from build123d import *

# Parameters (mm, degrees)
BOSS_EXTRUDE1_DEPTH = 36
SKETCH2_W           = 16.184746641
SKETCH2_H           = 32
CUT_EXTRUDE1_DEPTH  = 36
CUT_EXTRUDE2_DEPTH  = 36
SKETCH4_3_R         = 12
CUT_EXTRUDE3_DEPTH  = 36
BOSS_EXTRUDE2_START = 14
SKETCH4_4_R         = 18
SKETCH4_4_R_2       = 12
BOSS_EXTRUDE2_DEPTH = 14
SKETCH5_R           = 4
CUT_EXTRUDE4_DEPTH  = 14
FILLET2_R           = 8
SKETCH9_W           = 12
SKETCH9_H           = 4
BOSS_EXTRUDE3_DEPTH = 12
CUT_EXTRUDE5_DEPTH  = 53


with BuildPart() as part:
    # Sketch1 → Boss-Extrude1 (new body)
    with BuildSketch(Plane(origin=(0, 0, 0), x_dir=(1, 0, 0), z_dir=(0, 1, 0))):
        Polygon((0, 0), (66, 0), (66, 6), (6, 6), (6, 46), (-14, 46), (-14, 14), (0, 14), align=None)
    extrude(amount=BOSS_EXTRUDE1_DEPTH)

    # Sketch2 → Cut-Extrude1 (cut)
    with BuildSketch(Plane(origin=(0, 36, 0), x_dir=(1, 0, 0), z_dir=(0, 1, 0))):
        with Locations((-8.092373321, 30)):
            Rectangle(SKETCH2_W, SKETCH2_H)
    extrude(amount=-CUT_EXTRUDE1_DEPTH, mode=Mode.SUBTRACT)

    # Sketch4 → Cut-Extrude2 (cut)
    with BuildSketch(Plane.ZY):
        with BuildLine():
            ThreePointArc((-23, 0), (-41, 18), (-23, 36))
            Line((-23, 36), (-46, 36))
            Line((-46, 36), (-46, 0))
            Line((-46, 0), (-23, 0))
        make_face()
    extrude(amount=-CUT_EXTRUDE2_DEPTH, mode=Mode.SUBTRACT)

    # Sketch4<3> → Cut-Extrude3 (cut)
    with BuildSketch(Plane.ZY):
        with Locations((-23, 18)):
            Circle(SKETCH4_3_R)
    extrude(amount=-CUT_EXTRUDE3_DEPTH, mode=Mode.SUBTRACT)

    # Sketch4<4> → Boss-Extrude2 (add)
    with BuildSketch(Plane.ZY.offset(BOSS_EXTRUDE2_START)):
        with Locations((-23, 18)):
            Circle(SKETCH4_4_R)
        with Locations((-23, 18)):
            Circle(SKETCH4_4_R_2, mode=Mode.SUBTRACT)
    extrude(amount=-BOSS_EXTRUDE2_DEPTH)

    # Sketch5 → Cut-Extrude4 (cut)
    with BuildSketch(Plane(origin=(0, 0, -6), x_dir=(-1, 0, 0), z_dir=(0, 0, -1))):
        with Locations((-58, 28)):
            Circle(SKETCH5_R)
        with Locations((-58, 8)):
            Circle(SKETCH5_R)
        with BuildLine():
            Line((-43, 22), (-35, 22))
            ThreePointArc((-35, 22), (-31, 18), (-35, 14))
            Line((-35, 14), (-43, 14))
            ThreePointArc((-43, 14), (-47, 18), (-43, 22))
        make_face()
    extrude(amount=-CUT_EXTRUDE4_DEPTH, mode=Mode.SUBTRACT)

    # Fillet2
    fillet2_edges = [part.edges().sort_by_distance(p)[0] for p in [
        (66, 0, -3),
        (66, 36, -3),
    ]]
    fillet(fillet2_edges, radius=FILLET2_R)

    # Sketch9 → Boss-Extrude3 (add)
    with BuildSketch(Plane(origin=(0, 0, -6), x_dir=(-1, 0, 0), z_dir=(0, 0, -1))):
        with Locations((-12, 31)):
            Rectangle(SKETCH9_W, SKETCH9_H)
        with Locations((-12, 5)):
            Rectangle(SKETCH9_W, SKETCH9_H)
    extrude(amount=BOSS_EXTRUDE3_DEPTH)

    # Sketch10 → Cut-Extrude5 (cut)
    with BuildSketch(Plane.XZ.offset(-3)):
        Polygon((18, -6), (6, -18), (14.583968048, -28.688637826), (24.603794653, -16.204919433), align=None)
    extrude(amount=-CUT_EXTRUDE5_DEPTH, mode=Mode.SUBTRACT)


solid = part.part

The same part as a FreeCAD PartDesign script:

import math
import FreeCAD as App
import Part
import Sketcher

V = App.Vector
Q = App.Units.Quantity


def edges_at(feature, points):
    """Names of the edges that pass closest to the given points."""
    edges = feature.Shape.Edges
    near = lambda p: min(range(len(edges)), key=lambda i: edges[i].distToShape(Part.Vertex(*p))[0])
    return sorted({f"Edge{near(p) + 1}" for p in points})

doc = App.newDocument("Part")
params = doc.addObject("Spreadsheet::Sheet", "Params")
for row, (alias, value) in enumerate([
    ("sketch1_width", "66 mm"),
    ("sketch1_width2", "60 mm"),
    ("sketch1_width3", "20 mm"),
    ("sketch1_height", "6 mm"),
    ("sketch1_height2", "40 mm"),
    ("pad1_length", "36 mm"),
    ("sketch2_height", "32 mm"),
    ("pocket1_length", "36 mm"),
    ("sketch3_radius", "18 mm"),
    ("sketch3_height", "23 mm"),
    ("pocket2_length", "36 mm"),
    ("sketch4_diameter", "24 mm"),
    ("pocket3_length", "36 mm"),
    ("sketch5_diameter", "36 mm"),
    ("sketch5_diameter2", "24 mm"),
    ("pad2_length", "14 mm"),
    ("sketch6_diameter", "8 mm"),
    ("sketch6_width", "8 mm"),
    ("pocket4_length", "14 mm"),
    ("fillet_radius", "8 mm"),
    ("sketch7_width", "12 mm"),
    ("sketch7_height", "4 mm"),
    ("pad3_length", "12 mm"),
    ("pocket5_length", "53 mm"),
], start=1):
    params.set(f"A{row}", alias)
    params.set(f"B{row}", "=" + value)
    params.setAlias(f"B{row}", alias)

body = doc.addObject("PartDesign::Body", "Body")

sketch1 = body.newObject("Sketcher::SketchObject", "Sketch")
sketch1.AttachmentSupport = (doc.getObject("XZ_Plane"), [""])
sketch1.MapMode = "FlatFace"
sketch1.addGeometry([
    Part.LineSegment(V(0, 0, 0), V(66, 0, 0)),
    Part.LineSegment(V(66, 0, 0), V(66, -6, 0)),
    Part.LineSegment(V(66, -6, 0), V(6, -6, 0)),
    Part.LineSegment(V(6, -6, 0), V(6, -46, 0)),
    Part.LineSegment(V(6, -46, 0), V(-14, -46, 0)),
    Part.LineSegment(V(-14, -46, 0), V(-14, -14, 0)),
    Part.LineSegment(V(-14, -14, 0), V(0, -14, 0)),
    Part.LineSegment(V(0, -14, 0), V(0, 0, 0)),
], False)
sketch1.addConstraint([
    Sketcher.Constraint("Coincident", 0, 2, 1, 1),
    Sketcher.Constraint("Coincident", 1, 2, 2, 1),
    Sketcher.Constraint("Coincident", 2, 2, 3, 1),
    Sketcher.Constraint("Coincident", 3, 2, 4, 1),
    Sketcher.Constraint("Coincident", 4, 2, 5, 1),
    Sketcher.Constraint("Coincident", 5, 2, 6, 1),
    Sketcher.Constraint("Coincident", 6, 2, 7, 1),
    Sketcher.Constraint("Coincident", 7, 2, 0, 1),
    Sketcher.Constraint("Horizontal", 0),
    Sketcher.Constraint("Vertical", 1),
    Sketcher.Constraint("Horizontal", 2),
    Sketcher.Constraint("Vertical", 3),
    Sketcher.Constraint("Horizontal", 4),
    Sketcher.Constraint("Vertical", 5),
    Sketcher.Constraint("Horizontal", 6),
    Sketcher.Constraint("Vertical", 7),
    Sketcher.Constraint("Coincident", 7, 2, -1, 1),
    Sketcher.Constraint("Equal", 6, 7),
    Sketcher.Constraint("DistanceX", 0, 1, 0, 2, Q("66 mm")),
    Sketcher.Constraint("DistanceX", 2, 2, 2, 1, Q("60 mm")),
    Sketcher.Constraint("DistanceX", 4, 2, 4, 1, Q("20 mm")),
    Sketcher.Constraint("DistanceY", 1, 2, 1, 1, Q("6 mm")),
    Sketcher.Constraint("DistanceY", 3, 2, 3, 1, Q("40 mm")),
])
sketch1.setExpression("Constraints[18]", "Params.sketch1_width")
sketch1.setExpression("Constraints[19]", "Params.sketch1_width2")
sketch1.setExpression("Constraints[20]", "Params.sketch1_width3")
sketch1.setExpression("Constraints[21]", "Params.sketch1_height")
sketch1.setExpression("Constraints[22]", "Params.sketch1_height2")
pad1 = body.newObject("PartDesign::Pad", "Pad")
pad1.Profile = sketch1
pad1.setExpression("Length", "Params.pad1_length")
pad1.Reversed = True

sketch2 = body.newObject("Sketcher::SketchObject", "Sketch001")
sketch2.AttachmentSupport = (doc.getObject("XZ_Plane"), [""])
sketch2.MapMode = "FlatFace"
sketch2.AttachmentOffset = App.Placement(V(0, 0, -36), App.Rotation())
sketch2.addGeometry([
    Part.LineSegment(V(-16, -46, 0), V(-16, -14, 0)),
    Part.LineSegment(V(-16, -14, 0), V(0, -14, 0)),
    Part.LineSegment(V(0, -14, 0), V(0, -46, 0)),
    Part.LineSegment(V(0, -46, 0), V(-16, -46, 0)),
], False)
sketch2.addConstraint([
    Sketcher.Constraint("Coincident", 0, 2, 1, 1),
    Sketcher.Constraint("Coincident", 1, 2, 2, 1),
    Sketcher.Constraint("Coincident", 2, 2, 3, 1),
    Sketcher.Constraint("Coincident", 3, 2, 0, 1),
    Sketcher.Constraint("Vertical", 0),
    Sketcher.Constraint("Horizontal", 1),
    Sketcher.Constraint("Vertical", 2),
    Sketcher.Constraint("Horizontal", 3),
    Sketcher.Constraint("PointOnObject", 1, 2, -2),
    Sketcher.Constraint("DistanceY", 0, 1, 0, 2, Q("32 mm")),
    Sketcher.Constraint("DistanceY", 0, 2, -1, 1, Q("14 mm")),
    Sketcher.Constraint("DistanceX", 1, 1, 1, 2, Q("16.184747 mm")),
])
sketch2.setExpression("Constraints[9]", "Params.sketch2_height")
pocket1 = body.newObject("PartDesign::Pocket", "Pocket")
pocket1.Profile = sketch2
pocket1.setExpression("Length", "Params.pocket1_length")
pocket1.Reversed = True

sketch3 = body.newObject("Sketcher::SketchObject", "Sketch002")
sketch3.AttachmentSupport = (doc.getObject("YZ_Plane"), [""])
sketch3.MapMode = "FlatFace"
sketch3.addGeometry([
    Part.ArcOfCircle(Part.Circle(V(18, -23, 0), V(0, 0, 1), 18), math.radians(180), math.radians(360)),
    Part.LineSegment(V(36, -23, 0), V(36, -46, 0)),
    Part.LineSegment(V(36, -46, 0), V(0, -46, 0)),
    Part.LineSegment(V(0, -46, 0), V(0, -23, 0)),
], False)
sketch3.addConstraint([
    Sketcher.Constraint("Tangent", 0, 2, 1, 1),
    Sketcher.Constraint("Coincident", 1, 2, 2, 1),
    Sketcher.Constraint("Coincident", 2, 2, 3, 1),
    Sketcher.Constraint("Tangent", 3, 2, 0, 1),
    Sketcher.Constraint("Vertical", 1),
    Sketcher.Constraint("Horizontal", 2),
    Sketcher.Constraint("Vertical", 3),
    Sketcher.Constraint("PointOnObject", 2, 2, -2),
    Sketcher.Constraint("Radius", 0, Q("18 mm")),
    Sketcher.Constraint("DistanceY", 1, 2, 1, 1, Q("23 mm")),
    Sketcher.Constraint("DistanceY", 0, 3, -1, 1, Q("23 mm")),
])
sketch3.setExpression("Constraints[8]", "Params.sketch3_radius")
sketch3.setExpression("Constraints[9]", "Params.sketch3_height")
pocket2 = body.newObject("PartDesign::Pocket", "Pocket001")
pocket2.Profile = sketch3
pocket2.setExpression("Length", "Params.pocket2_length")
pocket2.Reversed = True

sketch4 = body.newObject("Sketcher::SketchObject", "Sketch003")
sketch4.AttachmentSupport = (doc.getObject("YZ_Plane"), [""])
sketch4.MapMode = "FlatFace"
sketch4.addGeometry(Part.Circle(V(18, -23, 0), V(0, 0, 1), 12), False)
sketch4.addConstraint([
    Sketcher.Constraint("Diameter", 0, Q("24 mm")),
    Sketcher.Constraint("DistanceX", -1, 1, 0, 3, Q("18 mm")),
    Sketcher.Constraint("DistanceY", 0, 3, -1, 1, Q("23 mm")),
])
sketch4.setExpression("Constraints[0]", "Params.sketch4_diameter")
pocket3 = body.newObject("PartDesign::Pocket", "Pocket002")
pocket3.Profile = sketch4
pocket3.setExpression("Length", "Params.pocket3_length")
pocket3.Reversed = True

sketch5 = body.newObject("Sketcher::SketchObject", "Sketch004")
sketch5.AttachmentSupport = (doc.getObject("YZ_Plane"), [""])
sketch5.MapMode = "FlatFace"
sketch5.AttachmentOffset = App.Placement(V(0, 0, -14), App.Rotation())
sketch5.addGeometry([
    Part.Circle(V(18, -23, 0), V(0, 0, 1), 18),
    Part.Circle(V(18, -23, 0), V(0, 0, 1), 12),
], False)
sketch5.addConstraint([
    Sketcher.Constraint("Coincident", 1, 3, 0, 3),
    Sketcher.Constraint("Diameter", 0, Q("36 mm")),
    Sketcher.Constraint("Diameter", 1, Q("24 mm")),
    Sketcher.Constraint("DistanceX", -1, 1, 0, 3, Q("18 mm")),
    Sketcher.Constraint("DistanceY", 0, 3, -1, 1, Q("23 mm")),
])
sketch5.setExpression("Constraints[1]", "Params.sketch5_diameter")
sketch5.setExpression("Constraints[2]", "Params.sketch5_diameter2")
pad2 = body.newObject("PartDesign::Pad", "Pad001")
pad2.Profile = sketch5
pad2.setExpression("Length", "Params.pad2_length")

sketch6 = body.newObject("Sketcher::SketchObject", "Sketch005")
sketch6.AttachmentSupport = (doc.getObject("XY_Plane"), [""])
sketch6.MapMode = "FlatFace"
sketch6.AttachmentOffset = App.Placement(V(0, 0, -6), App.Rotation())
sketch6.addGeometry([
    Part.Circle(V(58, 28, 0), V(0, 0, 1), 4),
    Part.Circle(V(58, 8, 0), V(0, 0, 1), 4),
    Part.LineSegment(V(35, 22, 0), V(43, 22, 0)),
    Part.ArcOfCircle(Part.Circle(V(43, 18, 0), V(0, 0, 1), 4), math.radians(-90), math.radians(90)),
    Part.LineSegment(V(43, 14, 0), V(35, 14, 0)),
    Part.ArcOfCircle(Part.Circle(V(35, 18, 0), V(0, 0, 1), 4), math.radians(90), math.radians(270)),
], False)
sketch6.addConstraint([
    Sketcher.Constraint("Tangent", 2, 2, 3, 2),
    Sketcher.Constraint("Tangent", 3, 1, 4, 1),
    Sketcher.Constraint("Tangent", 4, 2, 5, 2),
    Sketcher.Constraint("Tangent", 5, 1, 2, 1),
    Sketcher.Constraint("Horizontal", 2),
    Sketcher.Constraint("Horizontal", 4),
    Sketcher.Constraint("Equal", 0, 1),
    Sketcher.Constraint("Equal", 1, 3),
    Sketcher.Constraint("Vertical", 0, 3, 1, 3),
    Sketcher.Constraint("Diameter", 0, Q("8 mm")),
    Sketcher.Constraint("DistanceX", 2, 1, 2, 2, Q("8 mm")),
    Sketcher.Constraint("DistanceX", -1, 1, 0, 3, Q("58 mm")),
    Sketcher.Constraint("DistanceY", -1, 1, 0, 3, Q("28 mm")),
    Sketcher.Constraint("DistanceY", -1, 1, 1, 3, Q("8 mm")),
    Sketcher.Constraint("DistanceX", -1, 1, 3, 3, Q("43 mm")),
    Sketcher.Constraint("DistanceY", -1, 1, 3, 3, Q("18 mm")),
])
sketch6.setExpression("Constraints[9]", "Params.sketch6_diameter")
sketch6.setExpression("Constraints[10]", "Params.sketch6_width")
pocket4 = body.newObject("PartDesign::Pocket", "Pocket003")
pocket4.Profile = sketch6
pocket4.setExpression("Length", "Params.pocket4_length")
pocket4.Reversed = True
doc.recompute()

fillet = body.newObject("PartDesign::Fillet", "Fillet")
fillet.Base = (pocket4, edges_at(pocket4, [(66, 0, -3), (66, 36, -3)]))
fillet.setExpression("Radius", "Params.fillet_radius")

sketch7 = body.newObject("Sketcher::SketchObject", "Sketch006")
sketch7.AttachmentSupport = (doc.getObject("XY_Plane"), [""])
sketch7.MapMode = "FlatFace"
sketch7.AttachmentOffset = App.Placement(V(0, 0, -6), App.Rotation())
sketch7.addGeometry([
    Part.LineSegment(V(18, 33, 0), V(18, 29, 0)),
    Part.LineSegment(V(18, 29, 0), V(6, 29, 0)),
    Part.LineSegment(V(6, 29, 0), V(6, 33, 0)),
    Part.LineSegment(V(6, 33, 0), V(18, 33, 0)),
    Part.LineSegment(V(18, 7, 0), V(18, 3, 0)),
    Part.LineSegment(V(18, 3, 0), V(6, 3, 0)),
    Part.LineSegment(V(6, 3, 0), V(6, 7, 0)),
    Part.LineSegment(V(6, 7, 0), V(18, 7, 0)),
], False)
sketch7.addConstraint([
    Sketcher.Constraint("Coincident", 0, 2, 1, 1),
    Sketcher.Constraint("Coincident", 1, 2, 2, 1),
    Sketcher.Constraint("Coincident", 2, 2, 3, 1),
    Sketcher.Constraint("Coincident", 3, 2, 0, 1),
    Sketcher.Constraint("Coincident", 4, 2, 5, 1),
    Sketcher.Constraint("Coincident", 5, 2, 6, 1),
    Sketcher.Constraint("Coincident", 6, 2, 7, 1),
    Sketcher.Constraint("Coincident", 7, 2, 4, 1),
    Sketcher.Constraint("Vertical", 0),
    Sketcher.Constraint("Horizontal", 1),
    Sketcher.Constraint("Vertical", 2),
    Sketcher.Constraint("Horizontal", 3),
    Sketcher.Constraint("Vertical", 4),
    Sketcher.Constraint("Horizontal", 5),
    Sketcher.Constraint("Vertical", 6),
    Sketcher.Constraint("Horizontal", 7),
    Sketcher.Constraint("Vertical", 3, 2, 4, 2),
    Sketcher.Constraint("Vertical", 2, 2, 5, 2),
    Sketcher.Constraint("Equal", 2, 4),
    Sketcher.Constraint("DistanceX", 1, 2, 1, 1, Q("12 mm")),
    Sketcher.Constraint("DistanceY", 0, 2, 0, 1, Q("4 mm")),
    Sketcher.Constraint("DistanceX", -1, 1, 0, 2, Q("18 mm")),
    Sketcher.Constraint("DistanceY", -1, 1, 0, 2, Q("29 mm")),
    Sketcher.Constraint("DistanceY", -1, 1, 4, 2, Q("3 mm")),
])
sketch7.setExpression("Constraints[19]", "Params.sketch7_width")
sketch7.setExpression("Constraints[20]", "Params.sketch7_height")
pad3 = body.newObject("PartDesign::Pad", "Pad002")
pad3.Profile = sketch7
pad3.setExpression("Length", "Params.pad3_length")
pad3.Reversed = True

sketch8 = body.newObject("Sketcher::SketchObject", "Sketch007")
sketch8.AttachmentSupport = (doc.getObject("XZ_Plane"), [""])
sketch8.MapMode = "FlatFace"
sketch8.AttachmentOffset = App.Placement(V(0, 0, -3), App.Rotation())
sketch8.addGeometry([
    Part.LineSegment(V(18, -6, 0), V(6, -18, 0)),
    Part.LineSegment(V(6, -18, 0), V(15, -29, 0)),
    Part.LineSegment(V(15, -29, 0), V(25, -16, 0)),
    Part.LineSegment(V(25, -16, 0), V(18, -6, 0)),
], False)
sketch8.addConstraint([
    Sketcher.Constraint("Coincident", 0, 2, 1, 1),
    Sketcher.Constraint("Coincident", 1, 2, 2, 1),
    Sketcher.Constraint("Coincident", 2, 2, 3, 1),
    Sketcher.Constraint("Coincident", 3, 2, 0, 1),
    Sketcher.Constraint("Angle", 0, Q("-135 deg")),
    Sketcher.Constraint("DistanceX", -1, 1, 0, 2, Q("6 mm")),
    Sketcher.Constraint("DistanceY", 0, 2, -1, 1, Q("18 mm")),
    Sketcher.Constraint("DistanceX", -1, 1, 3, 2, Q("18 mm")),
    Sketcher.Constraint("Distance", 1, Q("13.708811 mm")),
    Sketcher.Constraint("DistanceX", -1, 1, 1, 2, Q("14.583968 mm")),
    Sketcher.Constraint("DistanceY", 2, 2, -1, 1, Q("16.204919 mm")),
    Sketcher.Constraint("Distance", 2, Q("16.007503 mm")),
])
pocket5 = body.newObject("PartDesign::Pocket", "Pocket004")
pocket5.Profile = sketch8
pocket5.setExpression("Length", "Params.pocket5_length")

doc.recompute()
